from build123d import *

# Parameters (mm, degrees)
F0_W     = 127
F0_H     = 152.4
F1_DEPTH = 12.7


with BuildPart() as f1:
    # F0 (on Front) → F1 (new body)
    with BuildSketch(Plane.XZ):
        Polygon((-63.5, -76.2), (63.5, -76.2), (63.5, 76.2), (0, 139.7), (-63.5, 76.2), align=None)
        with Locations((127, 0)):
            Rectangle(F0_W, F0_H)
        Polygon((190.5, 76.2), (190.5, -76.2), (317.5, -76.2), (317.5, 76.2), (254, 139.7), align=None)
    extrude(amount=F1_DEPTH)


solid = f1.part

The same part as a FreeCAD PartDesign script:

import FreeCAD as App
import Part
import Sketcher
from FreeCAD import Vector
Q = App.Units.Quantity


def add_polygon(sketch, points):
    """Adds a closed chain of lines whose ends are joined by coincident constraints."""
    first, n = sketch.GeometryCount, len(points)
    for a, b in zip(points, points[1:] + points[:1]):
        sketch.addGeometry(Part.LineSegment(App.Vector(*a, 0), App.Vector(*b, 0)), False)
    for i in range(n):
        sketch.addConstraint(Sketcher.Constraint("Coincident", first + i, 2, first + (i + 1) % n, 1))

doc = App.newDocument("Part")
body = doc.addObject("PartDesign::Body", "Body")

sketch1 = body.newObject("Sketcher::SketchObject", "Sketch")
sketch1.AttachmentSupport = (doc.getObject("XZ_Plane"), [""])
sketch1.MapMode = "FlatFace"
add_polygon(sketch1, [(-64, 76), (-64, -76), (318, -76), (318, 76), (254, 140), (190, 76), (64, 76), (0, 140)])
sketch1.addConstraint(Sketcher.Constraint("Vertical", 0))
sketch1.addConstraint(Sketcher.Constraint("Horizontal", 1))
sketch1.addConstraint(Sketcher.Constraint("Vertical", 2))
sketch1.addConstraint(Sketcher.Constraint("Horizontal", 5))
sketch1.addConstraint(Sketcher.Constraint("Symmetric", 0, 2, 5, 2, -1, 1))
sketch1.addConstraint(Sketcher.Constraint("PointOnObject", 6, 2, -2))
sketch1.addConstraint(Sketcher.Constraint("Perpendicular", 3, 4))
sketch1.addConstraint(Sketcher.Constraint("Perpendicular", 4, 6))
sketch1.addConstraint(Sketcher.Constraint("Perpendicular", 6, 7))
sketch1.addConstraint(Sketcher.Constraint("Horizontal", 2, 2, 4, 2))
sketch1.addConstraint(Sketcher.Constraint("Horizontal", 3, 2, 6, 2))
sketch1.addConstraint(Sketcher.Constraint("Horizontal", 5, 2, 7, 2))
sketch1.addConstraint(Sketcher.Constraint("DistanceX", 1, 1, 1, 2, Q("15 in")))
sketch1.addConstraint(Sketcher.Constraint("DistanceX", 5, 2, 5, 1, Q("5 in")))
sketch1.addConstraint(Sketcher.Constraint("DistanceY", 0, 2, 0, 1, Q("6 in")))
pad1 = body.newObject("PartDesign::Pad", "Pad")
pad1.Profile = sketch1
pad1.Length = Q("0.5 in")

doc.recompute()
